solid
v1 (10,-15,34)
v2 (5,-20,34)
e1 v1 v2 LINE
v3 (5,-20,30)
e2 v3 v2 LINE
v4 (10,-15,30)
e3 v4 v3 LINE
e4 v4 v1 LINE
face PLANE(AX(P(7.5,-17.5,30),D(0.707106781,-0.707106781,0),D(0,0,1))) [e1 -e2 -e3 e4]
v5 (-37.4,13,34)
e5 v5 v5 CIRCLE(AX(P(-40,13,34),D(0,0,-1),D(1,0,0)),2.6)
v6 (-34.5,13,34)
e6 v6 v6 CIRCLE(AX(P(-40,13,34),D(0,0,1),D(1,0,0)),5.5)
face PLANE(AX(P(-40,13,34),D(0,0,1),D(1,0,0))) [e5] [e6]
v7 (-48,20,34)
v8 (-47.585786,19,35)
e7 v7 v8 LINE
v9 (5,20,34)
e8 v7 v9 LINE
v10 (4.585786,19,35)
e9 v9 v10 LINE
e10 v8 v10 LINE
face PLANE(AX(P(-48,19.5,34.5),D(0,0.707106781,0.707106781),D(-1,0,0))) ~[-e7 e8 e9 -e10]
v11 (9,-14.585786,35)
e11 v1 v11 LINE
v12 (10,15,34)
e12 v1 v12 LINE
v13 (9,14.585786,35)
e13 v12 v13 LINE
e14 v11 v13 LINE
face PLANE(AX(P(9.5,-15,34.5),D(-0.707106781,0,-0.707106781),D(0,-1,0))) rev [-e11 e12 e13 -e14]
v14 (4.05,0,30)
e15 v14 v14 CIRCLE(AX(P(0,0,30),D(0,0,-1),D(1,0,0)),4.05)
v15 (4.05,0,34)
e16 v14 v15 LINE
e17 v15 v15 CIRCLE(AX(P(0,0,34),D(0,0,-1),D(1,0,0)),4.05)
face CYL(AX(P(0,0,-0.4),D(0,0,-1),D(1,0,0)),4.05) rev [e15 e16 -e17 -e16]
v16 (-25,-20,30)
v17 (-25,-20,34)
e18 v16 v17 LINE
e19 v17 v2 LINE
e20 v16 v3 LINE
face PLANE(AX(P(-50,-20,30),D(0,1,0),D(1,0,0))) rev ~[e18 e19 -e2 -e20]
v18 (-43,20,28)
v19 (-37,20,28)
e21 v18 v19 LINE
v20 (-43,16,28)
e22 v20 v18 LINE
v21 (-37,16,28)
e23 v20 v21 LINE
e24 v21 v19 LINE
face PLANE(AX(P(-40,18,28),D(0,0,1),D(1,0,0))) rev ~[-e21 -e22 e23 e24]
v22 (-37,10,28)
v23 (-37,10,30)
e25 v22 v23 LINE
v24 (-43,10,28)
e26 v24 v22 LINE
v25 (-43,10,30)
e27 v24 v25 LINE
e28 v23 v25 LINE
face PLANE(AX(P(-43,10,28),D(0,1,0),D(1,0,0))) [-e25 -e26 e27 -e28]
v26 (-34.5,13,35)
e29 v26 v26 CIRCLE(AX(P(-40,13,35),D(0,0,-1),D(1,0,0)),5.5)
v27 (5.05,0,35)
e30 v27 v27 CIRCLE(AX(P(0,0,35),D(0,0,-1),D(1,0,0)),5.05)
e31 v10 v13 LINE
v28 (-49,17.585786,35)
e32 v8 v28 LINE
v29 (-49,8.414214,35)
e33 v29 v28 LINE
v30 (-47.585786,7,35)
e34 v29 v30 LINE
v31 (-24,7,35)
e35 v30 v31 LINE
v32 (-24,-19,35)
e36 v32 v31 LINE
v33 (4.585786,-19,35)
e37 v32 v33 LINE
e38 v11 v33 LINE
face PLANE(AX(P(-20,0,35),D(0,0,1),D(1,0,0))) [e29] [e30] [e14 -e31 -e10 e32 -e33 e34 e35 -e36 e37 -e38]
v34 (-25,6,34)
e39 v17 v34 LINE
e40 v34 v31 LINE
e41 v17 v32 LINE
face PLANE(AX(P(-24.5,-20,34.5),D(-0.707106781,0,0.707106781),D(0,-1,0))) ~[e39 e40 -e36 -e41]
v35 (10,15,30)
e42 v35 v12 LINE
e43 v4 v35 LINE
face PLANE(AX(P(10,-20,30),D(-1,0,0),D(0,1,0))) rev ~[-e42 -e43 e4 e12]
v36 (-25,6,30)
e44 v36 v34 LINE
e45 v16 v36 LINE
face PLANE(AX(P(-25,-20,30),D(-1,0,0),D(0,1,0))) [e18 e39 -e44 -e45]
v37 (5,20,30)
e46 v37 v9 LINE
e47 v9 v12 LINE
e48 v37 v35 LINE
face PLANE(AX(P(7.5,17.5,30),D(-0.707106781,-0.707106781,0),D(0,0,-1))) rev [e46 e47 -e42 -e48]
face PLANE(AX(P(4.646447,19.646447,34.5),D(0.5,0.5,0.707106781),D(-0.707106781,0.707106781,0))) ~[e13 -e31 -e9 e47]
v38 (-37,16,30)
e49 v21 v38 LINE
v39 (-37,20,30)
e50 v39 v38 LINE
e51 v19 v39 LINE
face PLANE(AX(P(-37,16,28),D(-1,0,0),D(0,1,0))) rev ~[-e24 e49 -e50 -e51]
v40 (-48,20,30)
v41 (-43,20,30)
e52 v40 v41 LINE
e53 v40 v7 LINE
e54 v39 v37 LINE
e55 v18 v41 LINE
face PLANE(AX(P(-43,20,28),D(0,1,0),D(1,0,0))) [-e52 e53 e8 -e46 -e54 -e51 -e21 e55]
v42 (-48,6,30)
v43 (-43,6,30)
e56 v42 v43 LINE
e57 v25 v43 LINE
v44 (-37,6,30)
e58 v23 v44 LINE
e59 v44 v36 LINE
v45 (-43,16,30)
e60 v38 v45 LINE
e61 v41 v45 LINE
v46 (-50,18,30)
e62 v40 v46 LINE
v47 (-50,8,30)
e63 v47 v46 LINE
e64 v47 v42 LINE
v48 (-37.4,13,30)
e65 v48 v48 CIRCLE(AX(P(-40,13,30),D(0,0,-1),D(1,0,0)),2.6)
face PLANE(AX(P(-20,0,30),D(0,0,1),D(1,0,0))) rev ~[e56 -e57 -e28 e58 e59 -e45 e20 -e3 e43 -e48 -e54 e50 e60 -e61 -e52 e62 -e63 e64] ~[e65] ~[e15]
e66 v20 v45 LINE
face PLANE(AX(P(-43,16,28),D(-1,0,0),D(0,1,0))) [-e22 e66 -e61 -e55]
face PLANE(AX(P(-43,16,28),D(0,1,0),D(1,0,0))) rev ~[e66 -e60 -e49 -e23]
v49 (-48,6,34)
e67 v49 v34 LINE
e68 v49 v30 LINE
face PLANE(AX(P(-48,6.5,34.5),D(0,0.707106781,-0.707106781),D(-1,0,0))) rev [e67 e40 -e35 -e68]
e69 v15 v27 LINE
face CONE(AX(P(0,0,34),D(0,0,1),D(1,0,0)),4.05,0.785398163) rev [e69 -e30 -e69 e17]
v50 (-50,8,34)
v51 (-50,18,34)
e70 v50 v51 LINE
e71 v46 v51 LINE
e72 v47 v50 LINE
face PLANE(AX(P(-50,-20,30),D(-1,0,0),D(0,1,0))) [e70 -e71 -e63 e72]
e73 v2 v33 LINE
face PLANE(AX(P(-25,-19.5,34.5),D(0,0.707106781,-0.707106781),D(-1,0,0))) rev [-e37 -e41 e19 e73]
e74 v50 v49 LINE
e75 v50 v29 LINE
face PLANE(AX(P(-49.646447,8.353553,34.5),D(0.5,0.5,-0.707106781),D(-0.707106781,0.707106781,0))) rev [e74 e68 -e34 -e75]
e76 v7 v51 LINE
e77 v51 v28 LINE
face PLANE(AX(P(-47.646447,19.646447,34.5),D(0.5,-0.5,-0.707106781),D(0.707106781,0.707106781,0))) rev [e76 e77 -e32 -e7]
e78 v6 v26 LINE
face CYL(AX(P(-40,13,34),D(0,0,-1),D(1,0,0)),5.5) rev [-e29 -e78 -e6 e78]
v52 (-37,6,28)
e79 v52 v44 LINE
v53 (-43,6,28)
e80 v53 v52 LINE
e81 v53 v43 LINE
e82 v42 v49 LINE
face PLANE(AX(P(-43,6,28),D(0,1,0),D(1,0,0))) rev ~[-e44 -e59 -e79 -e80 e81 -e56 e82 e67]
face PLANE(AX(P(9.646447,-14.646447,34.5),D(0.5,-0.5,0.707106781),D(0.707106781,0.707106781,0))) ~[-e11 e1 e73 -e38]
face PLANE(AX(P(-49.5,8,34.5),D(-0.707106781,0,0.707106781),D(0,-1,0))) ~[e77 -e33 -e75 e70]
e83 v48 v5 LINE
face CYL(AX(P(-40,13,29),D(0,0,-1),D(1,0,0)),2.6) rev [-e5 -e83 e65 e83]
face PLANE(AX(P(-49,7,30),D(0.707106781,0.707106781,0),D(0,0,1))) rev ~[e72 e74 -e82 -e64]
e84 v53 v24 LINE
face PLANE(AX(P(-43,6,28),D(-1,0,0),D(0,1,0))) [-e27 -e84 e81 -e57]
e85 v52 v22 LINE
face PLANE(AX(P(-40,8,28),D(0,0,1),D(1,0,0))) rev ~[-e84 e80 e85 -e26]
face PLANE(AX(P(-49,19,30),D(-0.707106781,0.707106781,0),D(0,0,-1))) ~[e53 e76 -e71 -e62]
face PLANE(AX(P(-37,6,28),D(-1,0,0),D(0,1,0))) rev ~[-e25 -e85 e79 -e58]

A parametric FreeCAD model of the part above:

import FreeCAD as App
import Part
import Sketcher
Q = App.Units.Quantity


def edges_at(feature, points):
    """Names of the edges that pass closest to the given points."""
    edges = feature.Shape.Edges
    near = lambda p: min(range(len(edges)), key=lambda i: edges[i].distToShape(Part.Vertex(*p))[0])
    return sorted({f"Edge{near(p) + 1}" for p in points})


def add_polygon(sketch, points):
    """Adds a closed chain of lines whose ends are joined by coincident constraints."""
    first, n = sketch.GeometryCount, len(points)
    for a, b in zip(points, points[1:] + points[:1]):
        sketch.addGeometry(Part.LineSegment(App.Vector(*a, 0), App.Vector(*b, 0)), False)
    for i in range(n):
        sketch.addConstraint(Sketcher.Constraint("Coincident", first + i, 2, first + (i + 1) % n, 1))

doc = App.newDocument("Part")
body = doc.addObject("PartDesign::Body", "Body")

# Sketch on XY plane
sketch1 = body.newObject("Sketcher::SketchObject", "Sketch")
sketch1.AttachmentSupport = (doc.getObject("XY_Plane"), [""])
sketch1.MapMode = "FlatFace"
sketch1.AttachmentOffset = App.Placement(App.Vector(0, 0, 28), App.Rotation())
add_polygon(sketch1, [(-43, 10), (-43, 6), (-37, 6), (-37, 10)])  # lines 0-3
sketch1.addConstraint(Sketcher.Constraint("Vertical", 0))
sketch1.addConstraint(Sketcher.Constraint("Horizontal", 1))
sketch1.addConstraint(Sketcher.Constraint("Vertical", 2))
sketch1.addConstraint(Sketcher.Constraint("Horizontal", 3))
sketch1.addConstraint(Sketcher.Constraint("DistanceX", 1, 1, 1, 2, Q("6 mm")))
sketch1.addConstraint(Sketcher.Constraint("DistanceY", 0, 2, 0, 1, Q("4 mm")))
sketch1.addConstraint(Sketcher.Constraint("DistanceX", 0, 2, -1, 1, Q("43 mm")))
sketch1.addConstraint(Sketcher.Constraint("DistanceY", -1, 1, 0, 2, Q("6 mm")))
pad1 = body.newObject("PartDesign::Pad", "Pad")
pad1.Profile = sketch1
pad1.Length = 3
body2 = doc.addObject("PartDesign::Body", "Body001")

# Sketch on XY plane
sketch2 = body2.newObject("Sketcher::SketchObject", "Sketch001")
sketch2.AttachmentSupport = (doc.getObject("XY_Plane001"), [""])
sketch2.MapMode = "FlatFace"
sketch2.AttachmentOffset = App.Placement(App.Vector(0, 0, 28), App.Rotation())
add_polygon(sketch2, [(-43, 20), (-43, 16), (-37, 16), (-37, 20)])  # lines 0-3
sketch2.addConstraint(Sketcher.Constraint("Vertical", 0))
sketch2.addConstraint(Sketcher.Constraint("Horizontal", 1))
sketch2.addConstraint(Sketcher.Constraint("Vertical", 2))
sketch2.addConstraint(Sketcher.Constraint("Horizontal", 3))
sketch2.addConstraint(Sketcher.Constraint("DistanceX", 1, 1, 1, 2, Q("6 mm")))
sketch2.addConstraint(Sketcher.Constraint("DistanceY", 0, 2, 0, 1, Q("4 mm")))
sketch2.addConstraint(Sketcher.Constraint("DistanceX", 0, 2, -1, 1, Q("43 mm")))
sketch2.addConstraint(Sketcher.Constraint("DistanceY", -1, 1, 0, 2, Q("16 mm")))
pad2 = body2.newObject("PartDesign::Pad", "Pad001")
pad2.Profile = sketch2
pad2.Length = 3
body3 = doc.addObject("PartDesign::Body", "Body002")

# Sketch on XY plane
sketch3 = body3.newObject("Sketcher::SketchObject", "Sketch002")
sketch3.AttachmentSupport = (doc.getObject("XY_Plane002"), [""])
sketch3.MapMode = "FlatFace"
sketch3.AttachmentOffset = App.Placement(App.Vector(0, 0, 29), App.Rotation())
sketch3.addGeometry(Part.Circle(App.Vector(-40, 13, 0), App.Vector(0, 0, 1), 2.6), False)
sketch3.addConstraint(Sketcher.Constraint("Diameter", 0, Q("5.2 mm")))
sketch3.addConstraint(Sketcher.Constraint("DistanceX", 0, 3, -1, 1, Q("40 mm")))
sketch3.addConstraint(Sketcher.Constraint("DistanceY", -1, 1, 0, 3, Q("13 mm")))
pad3 = body3.newObject("PartDesign::Pad", "Pad002")
pad3.Profile = sketch3
pad3.Length = 10
body4 = doc.addObject("PartDesign::Body", "Body003")

# Sketch on XY plane
sketch4 = body4.newObject("Sketcher::SketchObject", "Sketch003")
sketch4.AttachmentSupport = (doc.getObject("XY_Plane003"), [""])
sketch4.MapMode = "FlatFace"
sketch4.AttachmentOffset = App.Placement(App.Vector(0, 0, 34), App.Rotation())
sketch4.addGeometry(Part.Circle(App.Vector(-40, 13, 0), App.Vector(0, 0, 1), 5.5), False)
sketch4.addConstraint(Sketcher.Constraint("Diameter", 0, Q("11 mm")))
sketch4.addConstraint(Sketcher.Constraint("DistanceX", 0, 3, -1, 1, Q("40 mm")))
sketch4.addConstraint(Sketcher.Constraint("DistanceY", -1, 1, 0, 3, Q("13 mm")))
pad4 = body4.newObject("PartDesign::Pad", "Pad003")
pad4.Profile = sketch4
pad4.Length = 3
doc.recompute()

boolean = body4.newObject("PartDesign::Boolean", "Boolean")
boolean.Type = "Fuse"
boolean.addObjects([body3])
body5 = doc.addObject("PartDesign::Body", "Body004")

# Sketch on XY plane
sketch5 = body5.newObject("Sketcher::SketchObject", "Sketch004")
sketch5.AttachmentSupport = (doc.getObject("XY_Plane004"), [""])
sketch5.MapMode = "FlatFace"
sketch5.AttachmentOffset = App.Placement(App.Vector(0, 0, -0.4), App.Rotation())
sketch5.addGeometry(Part.Circle(App.Vector(0, 0, 0), App.Vector(0, 0, 1), 4.05), False)
sketch5.addConstraint(Sketcher.Constraint("Coincident", 0, 3, -1, 1))
sketch5.addConstraint(Sketcher.Constraint("Diameter", 0, Q("8.1 mm")))
pad5 = body5.newObject("PartDesign::Pad", "Pad004")
pad5.Profile = sketch5
pad5.Length = 40
body6 = doc.addObject("PartDesign::Body", "Body005")

# Sketch on XY plane
sketch6 = body6.newObject("Sketcher::SketchObject", "Sketch005")
sketch6.AttachmentSupport = (doc.getObject("XY_Plane005"), [""])
sketch6.MapMode = "FlatFace"
sketch6.AttachmentOffset = App.Placement(App.Vector(0, 0, 30), App.Rotation())
add_polygon(sketch6, [(-50, 6), (-50, -20), (-25, -20), (-25, 6)])  # lines 0-3
sketch6.addConstraint(Sketcher.Constraint("Vertical", 0))
sketch6.addConstraint(Sketcher.Constraint("Horizontal", 1))
sketch6.addConstraint(Sketcher.Constraint("Vertical", 2))
sketch6.addConstraint(Sketcher.Constraint("Horizontal", 3))
sketch6.addConstraint(Sketcher.Constraint("DistanceX", 1, 1, 1, 2, Q("25 mm")))
sketch6.addConstraint(Sketcher.Constraint("DistanceY", 0, 2, 0, 1, Q("26 mm")))
sketch6.addConstraint(Sketcher.Constraint("DistanceX", 0, 2, -1, 1, Q("50 mm")))
sketch6.addConstraint(Sketcher.Constraint("DistanceY", 0, 2, -1, 1, Q("20 mm")))
pad6 = body6.newObject("PartDesign::Pad", "Pad005")
pad6.Profile = sketch6
pad6.Length = 5
body7 = doc.addObject("PartDesign::Body", "Body006")

# Sketch on XY plane
sketch7 = body7.newObject("Sketcher::SketchObject", "Sketch006")
sketch7.AttachmentSupport = (doc.getObject("XY_Plane006"), [""])
sketch7.MapMode = "FlatFace"
sketch7.AttachmentOffset = App.Placement(App.Vector(0, 0, 30), App.Rotation())
add_polygon(sketch7, [(-50, 20), (-50, -20), (10, -20), (10, 20)])  # lines 0-3
sketch7.addConstraint(Sketcher.Constraint("Vertical", 0))
sketch7.addConstraint(Sketcher.Constraint("Horizontal", 1))
sketch7.addConstraint(Sketcher.Constraint("Vertical", 2))
sketch7.addConstraint(Sketcher.Constraint("Horizontal", 3))
sketch7.addConstraint(Sketcher.Constraint("DistanceX", 1, 1, 1, 2, Q("60 mm")))
sketch7.addConstraint(Sketcher.Constraint("DistanceY", 0, 2, 0, 1, Q("40 mm")))
sketch7.addConstraint(Sketcher.Constraint("DistanceX", 0, 2, -1, 1, Q("50 mm")))
sketch7.addConstraint(Sketcher.Constraint("DistanceY", 0, 2, -1, 1, Q("20 mm")))
pad7 = body7.newObject("PartDesign::Pad", "Pad006")
pad7.Profile = sketch7
pad7.Length = 5
doc.recompute()

boolean2 = body7.newObject("PartDesign::Boolean", "Boolean001")
boolean2.Type = "Cut"
boolean2.addObjects([body6])
doc.recompute()

chamfer = body7.newObject("PartDesign::Chamfer", "Chamfer")
chamfer.Base = (boolean2, edges_at(boolean2, [(10, 20, 32.5), (10, -20, 32.5)]))
chamfer.Size = 5
doc.recompute()

boolean3 = body7.newObject("PartDesign::Boolean", "Boolean002")
boolean3.Type = "Cut"
boolean3.addObjects([body5])
doc.recompute()

chamfer2 = body7.newObject("PartDesign::Chamfer", "Chamfer001")
chamfer2.Base = (boolean3, edges_at(boolean3, [(-50, 20, 32.5), (-50, 6, 32.5)]))
chamfer2.Size = 2
doc.recompute()

boolean4 = body7.newObject("PartDesign::Boolean", "Boolean003")
boolean4.Type = "Cut"
boolean4.addObjects([body4])
doc.recompute()

chamfer3 = body7.newObject("PartDesign::Chamfer", "Chamfer002")
chamfer3.Base = (boolean4, edges_at(boolean4, [
    (-21.5, 20, 35),
    (-49, 19, 35),
    (7.5, 17.5, 35),
    (-50, 13, 35),
    (10, 0, 35),
    (-49, 7, 35),
    (7.5, -17.5, 35),
    (-36.5, 6, 35),
    (-10, -20, 35),
    (-25, -7, 35),
    (-4.05, 0, 35),
]))
chamfer3.Size = 1
doc.recompute()

boolean5 = body7.newObject("PartDesign::Boolean", "Boolean004")
boolean5.Type = "Fuse"
boolean5.addObjects([body])
doc.recompute()

boolean6 = body7.newObject("PartDesign::Boolean", "Boolean005")
boolean6.Type = "Fuse"
boolean6.addObjects([body2])

doc.recompute()
